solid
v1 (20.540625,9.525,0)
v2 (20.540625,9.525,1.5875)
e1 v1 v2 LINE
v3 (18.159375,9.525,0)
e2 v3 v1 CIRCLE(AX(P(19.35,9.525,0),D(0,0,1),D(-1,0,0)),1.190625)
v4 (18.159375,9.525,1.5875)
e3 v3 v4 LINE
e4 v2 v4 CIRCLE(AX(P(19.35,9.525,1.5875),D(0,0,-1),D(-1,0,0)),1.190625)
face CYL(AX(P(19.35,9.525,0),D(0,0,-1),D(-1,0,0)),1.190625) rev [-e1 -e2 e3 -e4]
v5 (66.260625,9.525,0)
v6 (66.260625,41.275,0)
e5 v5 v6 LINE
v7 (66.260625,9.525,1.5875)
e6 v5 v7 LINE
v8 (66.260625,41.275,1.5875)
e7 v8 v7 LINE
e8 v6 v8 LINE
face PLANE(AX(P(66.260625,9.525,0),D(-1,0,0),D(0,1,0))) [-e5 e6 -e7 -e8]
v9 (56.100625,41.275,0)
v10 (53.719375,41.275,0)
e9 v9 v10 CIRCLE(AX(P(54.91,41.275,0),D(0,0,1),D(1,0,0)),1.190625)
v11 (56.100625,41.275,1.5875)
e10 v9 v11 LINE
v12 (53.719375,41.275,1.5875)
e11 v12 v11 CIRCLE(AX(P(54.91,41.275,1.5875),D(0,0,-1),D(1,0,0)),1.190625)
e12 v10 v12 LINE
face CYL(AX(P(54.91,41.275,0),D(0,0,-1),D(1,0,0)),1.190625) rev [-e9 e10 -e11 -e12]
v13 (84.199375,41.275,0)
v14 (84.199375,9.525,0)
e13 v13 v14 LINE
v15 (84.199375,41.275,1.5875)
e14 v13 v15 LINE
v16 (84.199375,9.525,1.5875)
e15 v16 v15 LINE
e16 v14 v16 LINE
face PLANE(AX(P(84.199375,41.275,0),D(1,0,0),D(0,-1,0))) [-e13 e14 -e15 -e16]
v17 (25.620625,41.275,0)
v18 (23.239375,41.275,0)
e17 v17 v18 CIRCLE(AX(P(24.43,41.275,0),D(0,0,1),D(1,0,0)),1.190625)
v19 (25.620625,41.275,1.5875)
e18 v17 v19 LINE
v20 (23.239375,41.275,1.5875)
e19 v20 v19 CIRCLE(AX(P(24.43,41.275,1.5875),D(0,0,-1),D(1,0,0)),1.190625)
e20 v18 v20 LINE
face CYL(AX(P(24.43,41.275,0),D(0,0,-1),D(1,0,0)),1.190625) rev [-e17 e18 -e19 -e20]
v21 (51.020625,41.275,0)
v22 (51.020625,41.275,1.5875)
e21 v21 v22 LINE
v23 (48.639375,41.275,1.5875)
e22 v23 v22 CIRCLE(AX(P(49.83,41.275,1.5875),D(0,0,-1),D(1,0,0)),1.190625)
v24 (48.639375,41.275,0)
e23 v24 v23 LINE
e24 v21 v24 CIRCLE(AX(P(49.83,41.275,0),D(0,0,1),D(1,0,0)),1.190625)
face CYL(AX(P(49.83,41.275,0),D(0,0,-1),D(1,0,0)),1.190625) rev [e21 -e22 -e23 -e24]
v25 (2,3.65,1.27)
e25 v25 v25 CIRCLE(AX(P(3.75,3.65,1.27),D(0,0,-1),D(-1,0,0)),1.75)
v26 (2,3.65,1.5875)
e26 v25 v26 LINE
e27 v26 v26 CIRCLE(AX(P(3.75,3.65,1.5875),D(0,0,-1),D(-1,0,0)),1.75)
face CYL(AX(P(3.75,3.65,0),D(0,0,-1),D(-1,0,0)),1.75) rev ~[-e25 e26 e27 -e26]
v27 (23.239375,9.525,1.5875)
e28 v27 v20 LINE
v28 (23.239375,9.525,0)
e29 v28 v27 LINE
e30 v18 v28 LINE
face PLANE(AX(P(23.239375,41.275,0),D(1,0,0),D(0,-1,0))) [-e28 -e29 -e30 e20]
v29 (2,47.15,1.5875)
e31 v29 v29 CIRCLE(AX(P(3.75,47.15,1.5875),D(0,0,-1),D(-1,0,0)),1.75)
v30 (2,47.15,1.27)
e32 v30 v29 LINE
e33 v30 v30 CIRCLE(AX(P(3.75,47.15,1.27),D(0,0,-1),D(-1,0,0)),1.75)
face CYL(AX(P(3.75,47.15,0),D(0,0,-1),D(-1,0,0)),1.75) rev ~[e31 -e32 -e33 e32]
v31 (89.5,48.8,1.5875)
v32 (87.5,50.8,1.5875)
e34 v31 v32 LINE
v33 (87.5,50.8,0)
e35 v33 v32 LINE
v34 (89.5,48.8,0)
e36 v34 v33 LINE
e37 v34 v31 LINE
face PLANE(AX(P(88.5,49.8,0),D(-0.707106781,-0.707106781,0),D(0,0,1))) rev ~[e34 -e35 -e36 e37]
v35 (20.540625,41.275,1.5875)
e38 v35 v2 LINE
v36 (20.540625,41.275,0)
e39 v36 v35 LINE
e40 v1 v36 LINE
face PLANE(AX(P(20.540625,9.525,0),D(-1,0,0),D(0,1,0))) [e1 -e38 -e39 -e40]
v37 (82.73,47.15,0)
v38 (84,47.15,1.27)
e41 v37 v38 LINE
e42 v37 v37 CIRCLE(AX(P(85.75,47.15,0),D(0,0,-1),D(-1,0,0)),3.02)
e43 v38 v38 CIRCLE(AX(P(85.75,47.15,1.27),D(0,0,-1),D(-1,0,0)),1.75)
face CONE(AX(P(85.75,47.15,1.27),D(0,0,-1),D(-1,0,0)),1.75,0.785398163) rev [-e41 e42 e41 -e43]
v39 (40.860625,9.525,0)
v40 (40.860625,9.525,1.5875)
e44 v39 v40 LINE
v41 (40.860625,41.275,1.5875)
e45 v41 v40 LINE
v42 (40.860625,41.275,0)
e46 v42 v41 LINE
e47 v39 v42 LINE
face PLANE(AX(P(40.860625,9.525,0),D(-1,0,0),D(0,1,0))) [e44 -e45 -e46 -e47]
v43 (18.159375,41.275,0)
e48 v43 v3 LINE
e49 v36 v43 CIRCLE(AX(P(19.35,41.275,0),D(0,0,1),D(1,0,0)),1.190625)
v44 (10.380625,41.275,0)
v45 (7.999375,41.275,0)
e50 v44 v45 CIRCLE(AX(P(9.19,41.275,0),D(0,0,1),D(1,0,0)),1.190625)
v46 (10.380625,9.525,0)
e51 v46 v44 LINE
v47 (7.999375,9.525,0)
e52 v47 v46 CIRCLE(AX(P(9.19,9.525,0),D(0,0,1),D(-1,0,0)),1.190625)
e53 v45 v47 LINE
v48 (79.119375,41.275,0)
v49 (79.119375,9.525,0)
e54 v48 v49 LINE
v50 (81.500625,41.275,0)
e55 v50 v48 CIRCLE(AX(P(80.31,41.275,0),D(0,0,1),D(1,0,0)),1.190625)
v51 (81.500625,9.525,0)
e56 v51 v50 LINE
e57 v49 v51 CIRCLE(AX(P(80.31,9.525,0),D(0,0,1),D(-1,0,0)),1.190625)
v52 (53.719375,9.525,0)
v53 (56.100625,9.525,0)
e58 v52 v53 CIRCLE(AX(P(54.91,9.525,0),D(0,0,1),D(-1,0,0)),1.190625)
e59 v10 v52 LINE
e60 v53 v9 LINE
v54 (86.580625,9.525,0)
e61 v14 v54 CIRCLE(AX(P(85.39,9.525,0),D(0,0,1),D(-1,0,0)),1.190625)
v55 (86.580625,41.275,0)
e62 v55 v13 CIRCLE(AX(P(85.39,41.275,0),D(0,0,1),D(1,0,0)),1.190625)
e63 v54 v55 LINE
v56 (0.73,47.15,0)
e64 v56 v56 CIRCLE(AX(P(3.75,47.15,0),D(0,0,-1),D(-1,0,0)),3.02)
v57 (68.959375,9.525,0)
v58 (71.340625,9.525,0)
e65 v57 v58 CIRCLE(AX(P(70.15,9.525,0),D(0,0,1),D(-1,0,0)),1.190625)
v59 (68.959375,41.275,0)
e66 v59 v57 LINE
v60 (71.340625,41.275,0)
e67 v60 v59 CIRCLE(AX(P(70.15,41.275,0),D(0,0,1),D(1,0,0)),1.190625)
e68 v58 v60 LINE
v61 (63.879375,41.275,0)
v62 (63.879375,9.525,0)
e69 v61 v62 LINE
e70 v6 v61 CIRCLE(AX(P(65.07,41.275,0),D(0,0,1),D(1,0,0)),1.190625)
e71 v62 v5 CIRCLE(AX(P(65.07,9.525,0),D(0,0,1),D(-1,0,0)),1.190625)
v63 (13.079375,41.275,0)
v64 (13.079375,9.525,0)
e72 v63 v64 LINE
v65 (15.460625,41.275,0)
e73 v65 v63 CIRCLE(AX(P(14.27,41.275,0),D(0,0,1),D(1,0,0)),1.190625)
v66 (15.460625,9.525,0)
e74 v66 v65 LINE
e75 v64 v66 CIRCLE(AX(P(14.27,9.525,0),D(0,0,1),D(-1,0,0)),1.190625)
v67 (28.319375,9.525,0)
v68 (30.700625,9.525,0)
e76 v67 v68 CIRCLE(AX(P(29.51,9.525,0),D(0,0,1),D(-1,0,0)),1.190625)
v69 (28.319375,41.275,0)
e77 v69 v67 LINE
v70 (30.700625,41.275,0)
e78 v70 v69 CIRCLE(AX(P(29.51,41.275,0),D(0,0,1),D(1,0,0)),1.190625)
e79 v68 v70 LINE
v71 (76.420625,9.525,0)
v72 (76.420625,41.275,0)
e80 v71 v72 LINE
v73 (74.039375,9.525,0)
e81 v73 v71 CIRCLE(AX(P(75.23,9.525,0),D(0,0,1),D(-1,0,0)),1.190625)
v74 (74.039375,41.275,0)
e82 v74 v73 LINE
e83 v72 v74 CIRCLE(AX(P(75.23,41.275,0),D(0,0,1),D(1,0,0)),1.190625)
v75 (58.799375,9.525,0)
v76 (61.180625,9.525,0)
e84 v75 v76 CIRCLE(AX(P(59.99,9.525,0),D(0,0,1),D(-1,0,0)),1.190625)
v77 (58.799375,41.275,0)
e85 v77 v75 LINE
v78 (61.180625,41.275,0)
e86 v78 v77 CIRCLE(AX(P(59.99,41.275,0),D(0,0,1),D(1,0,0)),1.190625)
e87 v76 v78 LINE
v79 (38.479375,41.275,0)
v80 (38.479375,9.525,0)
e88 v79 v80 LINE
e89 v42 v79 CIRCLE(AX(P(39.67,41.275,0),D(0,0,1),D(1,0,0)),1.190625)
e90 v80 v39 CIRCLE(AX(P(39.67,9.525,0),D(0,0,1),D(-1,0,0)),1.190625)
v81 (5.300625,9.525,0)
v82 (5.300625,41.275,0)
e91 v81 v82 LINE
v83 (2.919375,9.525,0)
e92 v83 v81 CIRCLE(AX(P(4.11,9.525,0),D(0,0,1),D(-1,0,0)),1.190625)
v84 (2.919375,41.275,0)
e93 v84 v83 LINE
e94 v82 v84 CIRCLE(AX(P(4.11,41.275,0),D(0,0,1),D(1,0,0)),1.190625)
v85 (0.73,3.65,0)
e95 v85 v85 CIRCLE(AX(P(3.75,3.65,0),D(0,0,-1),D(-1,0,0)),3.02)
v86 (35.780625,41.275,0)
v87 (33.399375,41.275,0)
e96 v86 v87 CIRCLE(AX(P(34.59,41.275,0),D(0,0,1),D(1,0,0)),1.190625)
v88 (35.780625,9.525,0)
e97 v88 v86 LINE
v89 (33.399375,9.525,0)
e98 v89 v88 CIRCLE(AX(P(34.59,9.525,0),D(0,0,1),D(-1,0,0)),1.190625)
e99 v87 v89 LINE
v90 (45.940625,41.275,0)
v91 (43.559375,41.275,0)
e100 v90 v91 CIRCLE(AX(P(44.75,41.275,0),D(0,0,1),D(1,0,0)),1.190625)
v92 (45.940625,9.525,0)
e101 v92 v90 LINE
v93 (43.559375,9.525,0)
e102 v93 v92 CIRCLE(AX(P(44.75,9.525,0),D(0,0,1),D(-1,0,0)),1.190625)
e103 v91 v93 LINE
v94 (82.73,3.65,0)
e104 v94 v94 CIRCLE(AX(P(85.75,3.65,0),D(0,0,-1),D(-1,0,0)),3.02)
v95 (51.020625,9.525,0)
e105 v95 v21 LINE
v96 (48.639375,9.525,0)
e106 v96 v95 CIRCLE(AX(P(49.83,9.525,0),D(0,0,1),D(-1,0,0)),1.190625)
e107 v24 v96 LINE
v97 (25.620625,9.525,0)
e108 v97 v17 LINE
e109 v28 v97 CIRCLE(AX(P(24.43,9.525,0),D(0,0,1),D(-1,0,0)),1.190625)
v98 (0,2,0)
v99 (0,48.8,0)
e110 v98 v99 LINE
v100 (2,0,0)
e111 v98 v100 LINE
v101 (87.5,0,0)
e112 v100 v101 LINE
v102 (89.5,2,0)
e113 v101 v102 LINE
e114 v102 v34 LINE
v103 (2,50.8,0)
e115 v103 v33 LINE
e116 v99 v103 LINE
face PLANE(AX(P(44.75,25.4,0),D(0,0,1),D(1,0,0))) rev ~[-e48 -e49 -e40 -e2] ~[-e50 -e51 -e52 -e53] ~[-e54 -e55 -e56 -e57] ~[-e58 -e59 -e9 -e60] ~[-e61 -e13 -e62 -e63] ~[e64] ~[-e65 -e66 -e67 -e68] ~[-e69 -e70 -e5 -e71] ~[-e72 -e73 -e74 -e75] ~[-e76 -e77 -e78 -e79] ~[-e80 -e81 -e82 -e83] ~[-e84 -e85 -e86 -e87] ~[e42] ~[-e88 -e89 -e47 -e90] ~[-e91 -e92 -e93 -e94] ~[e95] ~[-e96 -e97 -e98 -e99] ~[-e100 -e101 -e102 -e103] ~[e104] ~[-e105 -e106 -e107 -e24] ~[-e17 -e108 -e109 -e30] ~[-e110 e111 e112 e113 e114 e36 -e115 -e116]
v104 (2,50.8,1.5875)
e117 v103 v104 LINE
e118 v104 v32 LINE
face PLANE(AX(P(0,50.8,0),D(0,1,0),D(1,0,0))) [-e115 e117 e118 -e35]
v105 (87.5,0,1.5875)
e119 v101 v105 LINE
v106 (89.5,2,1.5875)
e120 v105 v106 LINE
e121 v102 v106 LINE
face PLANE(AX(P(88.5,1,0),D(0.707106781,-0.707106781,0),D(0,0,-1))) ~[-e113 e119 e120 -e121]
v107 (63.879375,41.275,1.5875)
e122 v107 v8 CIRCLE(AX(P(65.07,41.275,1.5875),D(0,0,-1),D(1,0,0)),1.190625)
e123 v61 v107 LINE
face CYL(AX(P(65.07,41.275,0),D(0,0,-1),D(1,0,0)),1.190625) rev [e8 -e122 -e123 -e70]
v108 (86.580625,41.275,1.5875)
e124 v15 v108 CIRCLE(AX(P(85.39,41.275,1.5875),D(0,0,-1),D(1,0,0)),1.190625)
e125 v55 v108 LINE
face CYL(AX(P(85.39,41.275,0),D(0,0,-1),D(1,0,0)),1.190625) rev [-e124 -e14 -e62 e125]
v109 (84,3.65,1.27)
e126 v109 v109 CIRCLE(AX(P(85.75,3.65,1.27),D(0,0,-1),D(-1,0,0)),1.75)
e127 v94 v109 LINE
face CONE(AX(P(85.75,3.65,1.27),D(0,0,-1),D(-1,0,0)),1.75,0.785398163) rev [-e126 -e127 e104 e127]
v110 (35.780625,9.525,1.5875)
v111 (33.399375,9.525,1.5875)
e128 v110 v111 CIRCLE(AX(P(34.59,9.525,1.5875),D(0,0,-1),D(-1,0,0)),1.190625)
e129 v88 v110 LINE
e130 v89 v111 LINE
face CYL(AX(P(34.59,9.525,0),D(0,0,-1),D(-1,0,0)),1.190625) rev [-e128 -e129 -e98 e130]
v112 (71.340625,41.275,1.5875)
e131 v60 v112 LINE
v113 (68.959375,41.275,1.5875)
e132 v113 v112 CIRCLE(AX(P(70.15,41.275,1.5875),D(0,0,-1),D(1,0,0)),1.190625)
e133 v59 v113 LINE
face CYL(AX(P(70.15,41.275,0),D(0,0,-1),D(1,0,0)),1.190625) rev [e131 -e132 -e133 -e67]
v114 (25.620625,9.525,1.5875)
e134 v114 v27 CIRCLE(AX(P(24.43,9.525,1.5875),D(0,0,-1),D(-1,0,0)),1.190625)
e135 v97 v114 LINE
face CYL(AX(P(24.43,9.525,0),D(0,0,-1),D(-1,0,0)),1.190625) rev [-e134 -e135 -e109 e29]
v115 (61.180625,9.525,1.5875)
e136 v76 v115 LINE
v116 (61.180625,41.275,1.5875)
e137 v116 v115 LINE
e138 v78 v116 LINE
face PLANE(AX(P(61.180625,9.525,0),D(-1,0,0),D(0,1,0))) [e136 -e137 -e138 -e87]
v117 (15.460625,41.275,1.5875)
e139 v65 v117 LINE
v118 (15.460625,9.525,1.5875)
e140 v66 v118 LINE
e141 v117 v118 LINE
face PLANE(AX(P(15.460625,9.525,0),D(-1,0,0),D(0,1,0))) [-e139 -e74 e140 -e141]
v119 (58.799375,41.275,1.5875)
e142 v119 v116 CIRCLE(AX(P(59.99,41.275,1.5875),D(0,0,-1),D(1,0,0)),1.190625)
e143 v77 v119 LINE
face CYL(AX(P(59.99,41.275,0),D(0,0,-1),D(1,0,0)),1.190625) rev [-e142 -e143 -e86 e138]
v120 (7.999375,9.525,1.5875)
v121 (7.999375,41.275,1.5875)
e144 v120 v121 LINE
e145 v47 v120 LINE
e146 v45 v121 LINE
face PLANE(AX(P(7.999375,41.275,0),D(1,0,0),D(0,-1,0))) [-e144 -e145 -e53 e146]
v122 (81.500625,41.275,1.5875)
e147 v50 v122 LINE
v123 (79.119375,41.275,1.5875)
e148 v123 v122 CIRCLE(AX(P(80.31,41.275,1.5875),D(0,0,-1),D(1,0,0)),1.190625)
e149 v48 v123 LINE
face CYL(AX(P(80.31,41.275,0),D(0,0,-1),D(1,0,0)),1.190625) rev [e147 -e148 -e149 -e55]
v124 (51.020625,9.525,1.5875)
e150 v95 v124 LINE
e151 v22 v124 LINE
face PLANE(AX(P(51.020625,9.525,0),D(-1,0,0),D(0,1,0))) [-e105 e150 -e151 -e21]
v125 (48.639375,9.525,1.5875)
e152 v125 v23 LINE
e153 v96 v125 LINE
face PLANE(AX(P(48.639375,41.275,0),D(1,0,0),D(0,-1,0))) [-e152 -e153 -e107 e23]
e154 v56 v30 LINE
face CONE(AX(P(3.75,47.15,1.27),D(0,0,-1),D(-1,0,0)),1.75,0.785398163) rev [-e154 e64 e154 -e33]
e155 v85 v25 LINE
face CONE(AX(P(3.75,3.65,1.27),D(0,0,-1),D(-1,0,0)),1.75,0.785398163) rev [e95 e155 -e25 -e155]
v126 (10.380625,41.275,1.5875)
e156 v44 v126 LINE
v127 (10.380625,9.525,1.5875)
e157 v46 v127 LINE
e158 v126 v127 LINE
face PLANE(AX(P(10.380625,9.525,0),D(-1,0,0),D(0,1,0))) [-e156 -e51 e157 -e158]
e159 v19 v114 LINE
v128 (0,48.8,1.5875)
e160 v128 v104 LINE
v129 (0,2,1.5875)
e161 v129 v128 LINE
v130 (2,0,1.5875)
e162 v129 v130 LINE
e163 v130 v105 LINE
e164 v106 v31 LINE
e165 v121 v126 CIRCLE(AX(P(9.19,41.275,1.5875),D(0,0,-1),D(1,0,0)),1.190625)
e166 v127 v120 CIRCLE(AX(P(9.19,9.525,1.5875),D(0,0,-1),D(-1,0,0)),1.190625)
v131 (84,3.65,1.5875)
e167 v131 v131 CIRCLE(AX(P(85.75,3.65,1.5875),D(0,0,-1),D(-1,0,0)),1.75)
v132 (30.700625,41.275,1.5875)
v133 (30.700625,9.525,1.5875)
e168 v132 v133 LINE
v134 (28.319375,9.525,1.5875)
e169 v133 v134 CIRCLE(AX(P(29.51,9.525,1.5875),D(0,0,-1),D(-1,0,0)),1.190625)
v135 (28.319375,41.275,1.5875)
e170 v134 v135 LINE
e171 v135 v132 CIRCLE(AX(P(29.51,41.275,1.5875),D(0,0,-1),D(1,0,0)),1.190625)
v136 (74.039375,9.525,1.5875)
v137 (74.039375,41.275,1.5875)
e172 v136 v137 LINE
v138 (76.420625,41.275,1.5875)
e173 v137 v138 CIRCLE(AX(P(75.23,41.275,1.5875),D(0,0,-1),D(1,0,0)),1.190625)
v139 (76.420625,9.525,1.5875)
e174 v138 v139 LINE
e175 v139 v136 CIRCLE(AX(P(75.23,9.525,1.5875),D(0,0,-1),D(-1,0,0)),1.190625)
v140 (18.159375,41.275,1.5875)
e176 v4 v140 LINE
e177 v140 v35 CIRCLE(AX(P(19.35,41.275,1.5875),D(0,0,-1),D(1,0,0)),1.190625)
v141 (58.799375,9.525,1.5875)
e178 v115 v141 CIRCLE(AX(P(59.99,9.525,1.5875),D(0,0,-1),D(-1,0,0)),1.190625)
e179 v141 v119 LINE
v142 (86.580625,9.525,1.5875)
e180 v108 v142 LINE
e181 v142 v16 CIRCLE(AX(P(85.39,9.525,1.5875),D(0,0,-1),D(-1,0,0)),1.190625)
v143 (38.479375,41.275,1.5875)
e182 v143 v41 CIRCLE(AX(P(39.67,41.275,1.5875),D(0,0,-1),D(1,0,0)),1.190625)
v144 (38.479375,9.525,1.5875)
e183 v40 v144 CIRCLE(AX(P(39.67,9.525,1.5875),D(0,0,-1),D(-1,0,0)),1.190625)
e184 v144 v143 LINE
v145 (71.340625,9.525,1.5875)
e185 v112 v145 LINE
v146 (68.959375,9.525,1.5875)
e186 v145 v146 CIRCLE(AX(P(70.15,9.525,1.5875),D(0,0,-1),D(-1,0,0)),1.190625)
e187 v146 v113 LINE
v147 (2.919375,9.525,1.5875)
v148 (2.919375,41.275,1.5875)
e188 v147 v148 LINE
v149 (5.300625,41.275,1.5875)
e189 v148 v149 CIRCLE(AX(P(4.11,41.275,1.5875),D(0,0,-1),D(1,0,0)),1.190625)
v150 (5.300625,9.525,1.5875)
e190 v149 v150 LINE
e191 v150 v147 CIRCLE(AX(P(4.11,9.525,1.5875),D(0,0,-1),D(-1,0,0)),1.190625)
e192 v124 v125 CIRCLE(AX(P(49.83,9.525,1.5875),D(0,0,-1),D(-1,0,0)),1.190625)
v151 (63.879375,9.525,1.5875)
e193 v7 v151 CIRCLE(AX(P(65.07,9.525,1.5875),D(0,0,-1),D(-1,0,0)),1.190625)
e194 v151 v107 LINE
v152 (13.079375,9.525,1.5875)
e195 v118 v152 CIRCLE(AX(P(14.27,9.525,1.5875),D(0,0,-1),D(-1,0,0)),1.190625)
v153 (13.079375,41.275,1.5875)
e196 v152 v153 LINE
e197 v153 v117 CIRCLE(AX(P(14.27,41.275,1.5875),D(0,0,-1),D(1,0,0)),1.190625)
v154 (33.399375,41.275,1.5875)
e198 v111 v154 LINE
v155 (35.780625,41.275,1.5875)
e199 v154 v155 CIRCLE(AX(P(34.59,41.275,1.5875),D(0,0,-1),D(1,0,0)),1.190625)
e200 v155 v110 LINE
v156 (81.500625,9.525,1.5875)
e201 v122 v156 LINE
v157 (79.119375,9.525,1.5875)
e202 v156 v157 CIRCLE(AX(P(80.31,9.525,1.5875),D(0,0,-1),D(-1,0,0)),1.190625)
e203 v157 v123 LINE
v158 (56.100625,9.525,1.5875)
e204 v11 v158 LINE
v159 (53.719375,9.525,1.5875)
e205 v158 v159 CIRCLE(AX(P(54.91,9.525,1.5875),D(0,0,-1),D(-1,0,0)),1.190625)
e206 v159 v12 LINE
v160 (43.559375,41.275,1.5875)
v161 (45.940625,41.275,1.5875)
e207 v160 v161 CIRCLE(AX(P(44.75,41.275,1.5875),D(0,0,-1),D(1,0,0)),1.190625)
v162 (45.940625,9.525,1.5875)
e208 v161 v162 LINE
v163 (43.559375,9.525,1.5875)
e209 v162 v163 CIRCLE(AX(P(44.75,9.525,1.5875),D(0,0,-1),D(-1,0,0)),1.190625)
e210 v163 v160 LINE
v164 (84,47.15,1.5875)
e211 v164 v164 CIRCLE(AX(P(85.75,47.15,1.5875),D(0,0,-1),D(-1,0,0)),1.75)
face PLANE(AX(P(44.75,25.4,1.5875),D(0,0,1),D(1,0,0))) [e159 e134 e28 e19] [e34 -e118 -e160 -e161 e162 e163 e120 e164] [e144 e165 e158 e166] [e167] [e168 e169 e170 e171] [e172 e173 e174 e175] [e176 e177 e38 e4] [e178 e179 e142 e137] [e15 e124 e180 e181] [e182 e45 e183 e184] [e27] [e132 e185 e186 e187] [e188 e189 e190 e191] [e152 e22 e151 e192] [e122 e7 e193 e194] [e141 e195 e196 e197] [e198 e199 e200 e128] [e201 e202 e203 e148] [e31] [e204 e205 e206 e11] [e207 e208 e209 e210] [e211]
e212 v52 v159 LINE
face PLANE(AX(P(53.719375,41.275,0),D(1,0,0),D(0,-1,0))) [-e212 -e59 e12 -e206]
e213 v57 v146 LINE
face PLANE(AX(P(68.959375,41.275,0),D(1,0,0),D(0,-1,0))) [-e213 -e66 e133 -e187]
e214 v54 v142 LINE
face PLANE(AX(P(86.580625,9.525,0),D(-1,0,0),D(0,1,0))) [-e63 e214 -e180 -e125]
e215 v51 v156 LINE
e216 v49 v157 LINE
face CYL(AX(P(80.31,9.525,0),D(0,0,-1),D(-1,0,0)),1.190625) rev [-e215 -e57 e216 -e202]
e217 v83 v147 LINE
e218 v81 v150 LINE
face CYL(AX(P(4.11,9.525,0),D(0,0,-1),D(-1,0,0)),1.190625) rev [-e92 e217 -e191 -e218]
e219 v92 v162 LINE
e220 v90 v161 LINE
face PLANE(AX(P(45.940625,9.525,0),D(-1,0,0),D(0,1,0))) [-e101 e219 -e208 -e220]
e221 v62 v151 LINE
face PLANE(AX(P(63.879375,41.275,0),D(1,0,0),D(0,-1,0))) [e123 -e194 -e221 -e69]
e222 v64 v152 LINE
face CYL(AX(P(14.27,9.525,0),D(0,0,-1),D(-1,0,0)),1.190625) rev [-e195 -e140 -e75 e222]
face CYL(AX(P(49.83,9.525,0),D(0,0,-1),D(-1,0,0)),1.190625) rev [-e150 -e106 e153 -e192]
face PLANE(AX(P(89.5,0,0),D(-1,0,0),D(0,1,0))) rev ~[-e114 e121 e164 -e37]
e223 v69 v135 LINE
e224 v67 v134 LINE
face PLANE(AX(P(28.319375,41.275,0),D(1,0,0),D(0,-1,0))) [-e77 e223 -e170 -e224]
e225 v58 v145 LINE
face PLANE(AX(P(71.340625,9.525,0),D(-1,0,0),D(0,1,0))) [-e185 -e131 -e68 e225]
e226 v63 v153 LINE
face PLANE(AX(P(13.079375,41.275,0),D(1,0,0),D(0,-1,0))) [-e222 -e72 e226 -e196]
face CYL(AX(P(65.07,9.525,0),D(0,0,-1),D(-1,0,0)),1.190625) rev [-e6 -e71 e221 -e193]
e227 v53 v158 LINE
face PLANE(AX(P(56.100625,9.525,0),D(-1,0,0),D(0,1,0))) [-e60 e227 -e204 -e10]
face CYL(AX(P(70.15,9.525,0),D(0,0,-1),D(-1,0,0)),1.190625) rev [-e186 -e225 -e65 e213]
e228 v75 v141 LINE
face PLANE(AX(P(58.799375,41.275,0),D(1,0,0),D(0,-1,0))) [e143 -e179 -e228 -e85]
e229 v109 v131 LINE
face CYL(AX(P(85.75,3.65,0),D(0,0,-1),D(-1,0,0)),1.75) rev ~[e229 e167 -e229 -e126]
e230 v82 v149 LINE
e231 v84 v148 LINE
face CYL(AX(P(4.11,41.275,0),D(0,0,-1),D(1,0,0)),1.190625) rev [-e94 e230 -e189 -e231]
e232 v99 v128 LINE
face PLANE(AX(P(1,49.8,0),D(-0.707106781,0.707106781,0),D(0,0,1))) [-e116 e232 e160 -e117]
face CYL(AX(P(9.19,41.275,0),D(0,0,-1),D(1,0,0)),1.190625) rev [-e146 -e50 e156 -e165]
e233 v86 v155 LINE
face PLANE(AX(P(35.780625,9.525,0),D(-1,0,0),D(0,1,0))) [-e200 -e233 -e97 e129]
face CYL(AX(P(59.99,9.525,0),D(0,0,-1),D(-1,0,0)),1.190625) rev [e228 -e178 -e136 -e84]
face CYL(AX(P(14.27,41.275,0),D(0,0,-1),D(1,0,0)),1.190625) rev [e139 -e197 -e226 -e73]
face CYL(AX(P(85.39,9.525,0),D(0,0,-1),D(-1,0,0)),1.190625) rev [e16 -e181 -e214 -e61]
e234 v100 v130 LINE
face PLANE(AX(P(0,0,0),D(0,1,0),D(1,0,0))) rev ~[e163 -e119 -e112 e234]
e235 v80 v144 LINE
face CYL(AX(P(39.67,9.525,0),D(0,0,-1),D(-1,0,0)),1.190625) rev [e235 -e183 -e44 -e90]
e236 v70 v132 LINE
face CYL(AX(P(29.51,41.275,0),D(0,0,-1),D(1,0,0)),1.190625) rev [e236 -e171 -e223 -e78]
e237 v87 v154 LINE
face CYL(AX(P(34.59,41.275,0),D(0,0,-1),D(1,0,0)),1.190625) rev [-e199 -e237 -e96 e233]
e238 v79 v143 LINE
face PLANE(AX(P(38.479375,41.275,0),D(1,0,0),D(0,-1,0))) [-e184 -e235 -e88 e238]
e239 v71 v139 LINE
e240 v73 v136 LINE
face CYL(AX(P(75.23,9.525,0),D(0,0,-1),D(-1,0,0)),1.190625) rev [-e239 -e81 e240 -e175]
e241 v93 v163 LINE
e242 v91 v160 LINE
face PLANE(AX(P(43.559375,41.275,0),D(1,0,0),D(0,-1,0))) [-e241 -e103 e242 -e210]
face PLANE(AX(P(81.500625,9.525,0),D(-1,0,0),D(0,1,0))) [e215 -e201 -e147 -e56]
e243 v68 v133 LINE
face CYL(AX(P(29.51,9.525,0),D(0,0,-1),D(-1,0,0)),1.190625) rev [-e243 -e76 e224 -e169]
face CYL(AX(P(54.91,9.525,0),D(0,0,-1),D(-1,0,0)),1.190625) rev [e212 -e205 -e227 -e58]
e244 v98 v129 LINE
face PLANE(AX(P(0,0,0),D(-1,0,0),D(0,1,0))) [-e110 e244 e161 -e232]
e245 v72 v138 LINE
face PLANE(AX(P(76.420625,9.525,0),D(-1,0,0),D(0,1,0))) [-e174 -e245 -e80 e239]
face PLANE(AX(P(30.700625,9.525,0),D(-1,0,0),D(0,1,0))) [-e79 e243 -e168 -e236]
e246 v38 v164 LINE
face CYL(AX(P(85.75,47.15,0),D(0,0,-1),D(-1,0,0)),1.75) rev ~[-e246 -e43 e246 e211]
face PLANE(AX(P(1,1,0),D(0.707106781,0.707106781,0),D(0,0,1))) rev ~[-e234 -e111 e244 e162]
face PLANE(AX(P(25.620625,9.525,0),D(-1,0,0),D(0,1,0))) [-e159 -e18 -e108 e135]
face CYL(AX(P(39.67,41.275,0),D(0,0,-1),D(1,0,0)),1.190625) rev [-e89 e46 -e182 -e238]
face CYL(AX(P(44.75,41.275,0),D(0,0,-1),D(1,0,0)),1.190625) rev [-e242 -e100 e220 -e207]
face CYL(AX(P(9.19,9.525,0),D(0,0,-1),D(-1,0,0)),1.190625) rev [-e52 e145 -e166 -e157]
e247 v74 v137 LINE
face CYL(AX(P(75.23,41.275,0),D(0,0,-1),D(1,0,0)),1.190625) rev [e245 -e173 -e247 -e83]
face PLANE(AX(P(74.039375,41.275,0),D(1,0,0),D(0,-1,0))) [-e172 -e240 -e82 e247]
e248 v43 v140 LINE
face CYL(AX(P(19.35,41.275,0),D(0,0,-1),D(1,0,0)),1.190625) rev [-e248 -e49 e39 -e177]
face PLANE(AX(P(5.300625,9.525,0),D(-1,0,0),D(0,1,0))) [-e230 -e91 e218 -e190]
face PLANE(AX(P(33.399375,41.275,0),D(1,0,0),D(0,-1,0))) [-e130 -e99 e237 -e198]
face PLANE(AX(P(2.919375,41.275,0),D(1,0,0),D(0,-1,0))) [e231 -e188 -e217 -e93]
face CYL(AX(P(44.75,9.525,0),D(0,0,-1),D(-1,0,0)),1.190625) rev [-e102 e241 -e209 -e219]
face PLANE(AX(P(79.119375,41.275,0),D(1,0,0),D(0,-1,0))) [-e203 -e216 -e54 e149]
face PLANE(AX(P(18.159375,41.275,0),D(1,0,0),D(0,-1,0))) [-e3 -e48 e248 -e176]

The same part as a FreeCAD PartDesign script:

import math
import FreeCAD as App
import Part
import Sketcher
Q = App.Units.Quantity


def edges_at(feature, points):
    """Names of the edges that pass closest to the given points."""
    edges = feature.Shape.Edges
    near = lambda p: min(range(len(edges)), key=lambda i: edges[i].distToShape(Part.Vertex(*p))[0])
    return sorted({f"Edge{near(p) + 1}" for p in points})

doc = App.newDocument("Part")
params = doc.addObject("Spreadsheet::Sheet", "Params")
for row, (alias, value) in enumerate([
    ("sketch1_height", "2 in"),
    ("pad1_length", "0.0625 in"),
    ("chamfer_size", "2 mm"),
    ("sketch2_radius", "0.046875 in"),
    ("sketch2_height", "1.25 in"),
    ("chamfer2_size", "0.05 in"),
], start=1):
    params.set(f"A{row}", alias)
    params.set(f"B{row}", "=" + value)
    params.setAlias(f"B{row}", alias)

body = doc.addObject("PartDesign::Body", "Body")

# Sketch on XY plane
sketch1 = body.newObject("Sketcher::SketchObject", "Sketch")
sketch1.AttachmentSupport = (doc.getObject("XY_Plane"), [""])
sketch1.MapMode = "FlatFace"
sketch1.addGeometry([
    Part.LineSegment(App.Vector(0, 51, 0), App.Vector(0, 0, 0)),
    Part.LineSegment(App.Vector(0, 0, 0), App.Vector(90, 0, 0)),
    Part.LineSegment(App.Vector(90, 0, 0), App.Vector(90, 51, 0)),
    Part.LineSegment(App.Vector(90, 51, 0), App.Vector(0, 51, 0)),
], False)
sketch1.addConstraint([
    Sketcher.Constraint("Coincident", 0, 2, 1, 1),
    Sketcher.Constraint("Coincident", 1, 2, 2, 1),
    Sketcher.Constraint("Coincident", 2, 2, 3, 1),
    Sketcher.Constraint("Coincident", 3, 2, 0, 1),
    Sketcher.Constraint("Vertical", 0),
    Sketcher.Constraint("Horizontal", 1),
    Sketcher.Constraint("Vertical", 2),
    Sketcher.Constraint("Horizontal", 3),
    Sketcher.Constraint("Coincident", 0, 2, -1, 1),
    Sketcher.Constraint("DistanceY", 0, 2, 0, 1, Q("2 in")),
    Sketcher.Constraint("DistanceX", 1, 1, 1, 2, Q("89.5 mm")),
])
sketch1.setExpression("Constraints[9]", "Params.sketch1_height")
pad1 = body.newObject("PartDesign::Pad", "Pad")
pad1.Profile = sketch1
pad1.setExpression("Length", "Params.pad1_length")
doc.recompute()

chamfer = body.newObject("PartDesign::Chamfer", "Chamfer")
chamfer.Base = (pad1, edges_at(pad1, [
    (0, 50.8, 0.794),
    (89.5, 50.8, 0.794),
    (89.5, 0, 0.794),
    (0, 0, 0.794),
]))
chamfer.setExpression("Size", "Params.chamfer_size")

# Sketch on XY plane
sketch2 = body.newObject("Sketcher::SketchObject", "Sketch001")
sketch2.AttachmentSupport = (doc.getObject("XY_Plane"), [""])
sketch2.MapMode = "FlatFace"
sketch2.addGeometry([
    Part.LineSegment(App.Vector(43.6, 9.5, 0), App.Vector(43.6, 41.3, 0)),  # 0
    Part.ArcOfCircle(Part.Circle(App.Vector(44.8, 41.3, 0), App.Vector(0, 0, 1), 1.2), math.radians(0), math.radians(180)),  # 1
    Part.LineSegment(App.Vector(45.9, 41.3, 0), App.Vector(45.9, 9.5, 0)),  # 2
    Part.ArcOfCircle(Part.Circle(App.Vector(44.8, 9.5, 0), App.Vector(0, 0, 1), 1.2), math.radians(180), math.radians(360)),  # 3
    Part.LineSegment(App.Vector(38.5, 9.5, 0), App.Vector(38.5, 41.3, 0)),  # 4
    Part.ArcOfCircle(Part.Circle(App.Vector(39.7, 41.3, 0), App.Vector(0, 0, 1), 1.2), math.radians(0), math.radians(180)),  # 5
    Part.LineSegment(App.Vector(40.9, 41.3, 0), App.Vector(40.9, 9.5, 0)),  # 6
    Part.ArcOfCircle(Part.Circle(App.Vector(39.7, 9.5, 0), App.Vector(0, 0, 1), 1.2), math.radians(180), math.radians(360)),  # 7
    Part.LineSegment(App.Vector(33.4, 9.5, 0), App.Vector(33.4, 41.3, 0)),  # 8
    Part.ArcOfCircle(Part.Circle(App.Vector(34.6, 41.3, 0), App.Vector(0, 0, 1), 1.2), math.radians(0), math.radians(180)),  # 9
    Part.LineSegment(App.Vector(35.8, 41.3, 0), App.Vector(35.8, 9.5, 0)),  # 10
    Part.ArcOfCircle(Part.Circle(App.Vector(34.6, 9.5, 0), App.Vector(0, 0, 1), 1.2), math.radians(180), math.radians(360)),  # 11
    Part.LineSegment(App.Vector(28.3, 9.5, 0), App.Vector(28.3, 41.3, 0)),  # 12
    Part.ArcOfCircle(Part.Circle(App.Vector(29.5, 41.3, 0), App.Vector(0, 0, 1), 1.2), math.radians(0), math.radians(180)),  # 13
    Part.LineSegment(App.Vector(30.7, 41.3, 0), App.Vector(30.7, 9.5, 0)),  # 14
    Part.ArcOfCircle(Part.Circle(App.Vector(29.5, 9.5, 0), App.Vector(0, 0, 1), 1.2), math.radians(180), math.radians(360)),  # 15
    Part.LineSegment(App.Vector(23.2, 9.5, 0), App.Vector(23.2, 41.3, 0)),  # 16
    Part.ArcOfCircle(Part.Circle(App.Vector(24.4, 41.3, 0), App.Vector(0, 0, 1), 1.2), math.radians(0), math.radians(180)),  # 17
    Part.LineSegment(App.Vector(25.6, 41.3, 0), App.Vector(25.6, 9.5, 0)),  # 18
    Part.ArcOfCircle(Part.Circle(App.Vector(24.4, 9.5, 0), App.Vector(0, 0, 1), 1.2), math.radians(180), math.radians(360)),  # 19
    Part.LineSegment(App.Vector(18.2, 9.5, 0), App.Vector(18.2, 41.3, 0)),  # 20
    Part.ArcOfCircle(Part.Circle(App.Vector(19.4, 41.3, 0), App.Vector(0, 0, 1), 1.2), math.radians(0), math.radians(180)),  # 21
    Part.LineSegment(App.Vector(20.5, 41.3, 0), App.Vector(20.5, 9.5, 0)),  # 22
    Part.ArcOfCircle(Part.Circle(App.Vector(19.4, 9.5, 0), App.Vector(0, 0, 1), 1.2), math.radians(180), math.radians(360)),  # 23
    Part.LineSegment(App.Vector(13.1, 9.5, 0), App.Vector(13.1, 41.3, 0)),  # 24
    Part.ArcOfCircle(Part.Circle(App.Vector(14.3, 41.3, 0), App.Vector(0, 0, 1), 1.2), math.radians(0), math.radians(180)),  # 25
    Part.LineSegment(App.Vector(15.5, 41.3, 0), App.Vector(15.5, 9.5, 0)),  # 26
    Part.ArcOfCircle(Part.Circle(App.Vector(14.3, 9.5, 0), App.Vector(0, 0, 1), 1.2), math.radians(180), math.radians(360)),  # 27
    Part.LineSegment(App.Vector(8, 9.5, 0), App.Vector(8, 41.3, 0)),  # 28
    Part.ArcOfCircle(Part.Circle(App.Vector(9.2, 41.3, 0), App.Vector(0, 0, 1), 1.2), math.radians(0), math.radians(180)),  # 29
    Part.LineSegment(App.Vector(10.4, 41.3, 0), App.Vector(10.4, 9.5, 0)),  # 30
    Part.ArcOfCircle(Part.Circle(App.Vector(9.2, 9.5, 0), App.Vector(0, 0, 1), 1.2), math.radians(180), math.radians(360)),  # 31
    Part.LineSegment(App.Vector(2.9, 9.5, 0), App.Vector(2.9, 41.3, 0)),  # 32
    Part.ArcOfCircle(Part.Circle(App.Vector(4.1, 41.3, 0), App.Vector(0, 0, 1), 1.2), math.radians(0), math.radians(180)),  # 33
    Part.LineSegment(App.Vector(5.3, 41.3, 0), App.Vector(5.3, 9.5, 0)),  # 34
    Part.ArcOfCircle(Part.Circle(App.Vector(4.1, 9.5, 0), App.Vector(0, 0, 1), 1.2), math.radians(180), math.radians(360)),  # 35
    Part.LineSegment(App.Vector(48.6, 9.5, 0), App.Vector(48.6, 41.3, 0)),  # 36
    Part.ArcOfCircle(Part.Circle(App.Vector(49.8, 41.3, 0), App.Vector(0, 0, 1), 1.2), math.radians(0), math.radians(180)),  # 37
    Part.LineSegment(App.Vector(51, 41.3, 0), App.Vector(51, 9.5, 0)),  # 38
    Part.ArcOfCircle(Part.Circle(App.Vector(49.8, 9.5, 0), App.Vector(0, 0, 1), 1.2), math.radians(180), math.radians(360)),  # 39
    Part.LineSegment(App.Vector(53.7, 9.5, 0), App.Vector(53.7, 41.3, 0)),  # 40
    Part.ArcOfCircle(Part.Circle(App.Vector(54.9, 41.3, 0), App.Vector(0, 0, 1), 1.2), math.radians(0), math.radians(180)),  # 41
    Part.LineSegment(App.Vector(56.1, 41.3, 0), App.Vector(56.1, 9.5, 0)),  # 42
    Part.ArcOfCircle(Part.Circle(App.Vector(54.9, 9.5, 0), App.Vector(0, 0, 1), 1.2), math.radians(180), math.radians(360)),  # 43
    Part.LineSegment(App.Vector(58.8, 9.5, 0), App.Vector(58.8, 41.3, 0)),  # 44
    Part.ArcOfCircle(Part.Circle(App.Vector(60, 41.3, 0), App.Vector(0, 0, 1), 1.2), math.radians(0), math.radians(180)),  # 45
    Part.LineSegment(App.Vector(61.2, 41.3, 0), App.Vector(61.2, 9.5, 0)),  # 46
    Part.ArcOfCircle(Part.Circle(App.Vector(60, 9.5, 0), App.Vector(0, 0, 1), 1.2), math.radians(180), math.radians(360)),  # 47
    Part.LineSegment(App.Vector(63.9, 9.5, 0), App.Vector(63.9, 41.3, 0)),  # 48
    Part.ArcOfCircle(Part.Circle(App.Vector(65.1, 41.3, 0), App.Vector(0, 0, 1), 1.2), math.radians(0), math.radians(180)),  # 49
    Part.LineSegment(App.Vector(66.3, 41.3, 0), App.Vector(66.3, 9.5, 0)),  # 50
    Part.ArcOfCircle(Part.Circle(App.Vector(65.1, 9.5, 0), App.Vector(0, 0, 1), 1.2), math.radians(180), math.radians(360)),  # 51
    Part.LineSegment(App.Vector(69, 9.5, 0), App.Vector(69, 41.3, 0)),  # 52
    Part.ArcOfCircle(Part.Circle(App.Vector(70.2, 41.3, 0), App.Vector(0, 0, 1), 1.2), math.radians(0), math.radians(180)),  # 53
    Part.LineSegment(App.Vector(71.3, 41.3, 0), App.Vector(71.3, 9.5, 0)),  # 54
    Part.ArcOfCircle(Part.Circle(App.Vector(70.2, 9.5, 0), App.Vector(0, 0, 1), 1.2), math.radians(180), math.radians(360)),  # 55
    Part.LineSegment(App.Vector(74, 9.5, 0), App.Vector(74, 41.3, 0)),  # 56
    Part.ArcOfCircle(Part.Circle(App.Vector(75.2, 41.3, 0), App.Vector(0, 0, 1), 1.2), math.radians(0), math.radians(180)),  # 57
    Part.LineSegment(App.Vector(76.4, 41.3, 0), App.Vector(76.4, 9.5, 0)),  # 58
    Part.ArcOfCircle(Part.Circle(App.Vector(75.2, 9.5, 0), App.Vector(0, 0, 1), 1.2), math.radians(180), math.radians(360)),  # 59
    Part.LineSegment(App.Vector(79.1, 9.5, 0), App.Vector(79.1, 41.3, 0)),  # 60
    Part.ArcOfCircle(Part.Circle(App.Vector(80.3, 41.3, 0), App.Vector(0, 0, 1), 1.2), math.radians(0), math.radians(180)),  # 61
    Part.LineSegment(App.Vector(81.5, 41.3, 0), App.Vector(81.5, 9.5, 0)),  # 62
    Part.ArcOfCircle(Part.Circle(App.Vector(80.3, 9.5, 0), App.Vector(0, 0, 1), 1.2), math.radians(180), math.radians(360)),  # 63
    Part.LineSegment(App.Vector(84.2, 9.5, 0), App.Vector(84.2, 41.3, 0)),  # 64
    Part.ArcOfCircle(Part.Circle(App.Vector(85.4, 41.3, 0), App.Vector(0, 0, 1), 1.2), math.radians(0), math.radians(180)),  # 65
    Part.LineSegment(App.Vector(86.6, 41.3, 0), App.Vector(86.6, 9.5, 0)),  # 66
    Part.ArcOfCircle(Part.Circle(App.Vector(85.4, 9.5, 0), App.Vector(0, 0, 1), 1.2), math.radians(180), math.radians(360)),  # 67
], False)
sketch2.addConstraint([
    Sketcher.Constraint("Tangent", 0, 2, 1, 2),
    Sketcher.Constraint("Tangent", 1, 1, 2, 1),
    Sketcher.Constraint("Tangent", 2, 2, 3, 2),
    Sketcher.Constraint("Tangent", 3, 1, 0, 1),
    Sketcher.Constraint("Tangent", 4, 2, 5, 2),
    Sketcher.Constraint("Tangent", 5, 1, 6, 1),
    Sketcher.Constraint("Tangent", 6, 2, 7, 2),
    Sketcher.Constraint("Tangent", 7, 1, 4, 1),
    Sketcher.Constraint("Tangent", 8, 2, 9, 2),
    Sketcher.Constraint("Tangent", 9, 1, 10, 1),
    Sketcher.Constraint("Tangent", 10, 2, 11, 2),
    Sketcher.Constraint("Tangent", 11, 1, 8, 1),
    Sketcher.Constraint("Tangent", 12, 2, 13, 2),
    Sketcher.Constraint("Tangent", 13, 1, 14, 1),
    Sketcher.Constraint("Tangent", 14, 2, 15, 2),
    Sketcher.Constraint("Tangent", 15, 1, 12, 1),
    Sketcher.Constraint("Tangent", 16, 2, 17, 2),
    Sketcher.Constraint("Tangent", 17, 1, 18, 1),
    Sketcher.Constraint("Tangent", 18, 2, 19, 2),
    Sketcher.Constraint("Tangent", 19, 1, 16, 1),
    Sketcher.Constraint("Tangent", 20, 2, 21, 2),
    Sketcher.Constraint("Tangent", 21, 1, 22, 1),
    Sketcher.Constraint("Tangent", 22, 2, 23, 2),
    Sketcher.Constraint("Tangent", 23, 1, 20, 1),
    Sketcher.Constraint("Tangent", 24, 2, 25, 2),
    Sketcher.Constraint("Tangent", 25, 1, 26, 1),
    Sketcher.Constraint("Tangent", 26, 2, 27, 2),
    Sketcher.Constraint("Tangent", 27, 1, 24, 1),
    Sketcher.Constraint("Tangent", 28, 2, 29, 2),
    Sketcher.Constraint("Tangent", 29, 1, 30, 1),
    Sketcher.Constraint("Tangent", 30, 2, 31, 2),
    Sketcher.Constraint("Tangent", 31, 1, 28, 1),
    Sketcher.Constraint("Tangent", 32, 2, 33, 2),
    Sketcher.Constraint("Tangent", 33, 1, 34, 1),
    Sketcher.Constraint("Tangent", 34, 2, 35, 2),
    Sketcher.Constraint("Tangent", 35, 1, 32, 1),
    Sketcher.Constraint("Tangent", 36, 2, 37, 2),
    Sketcher.Constraint("Tangent", 37, 1, 38, 1),
    Sketcher.Constraint("Tangent", 38, 2, 39, 2),
    Sketcher.Constraint("Tangent", 39, 1, 36, 1),
    Sketcher.Constraint("Tangent", 40, 2, 41, 2),
    Sketcher.Constraint("Tangent", 41, 1, 42, 1),
    Sketcher.Constraint("Tangent", 42, 2, 43, 2),
    Sketcher.Constraint("Tangent", 43, 1, 40, 1),
    Sketcher.Constraint("Tangent", 44, 2, 45, 2),
    Sketcher.Constraint("Tangent", 45, 1, 46, 1),
    Sketcher.Constraint("Tangent", 46, 2, 47, 2),
    Sketcher.Constraint("Tangent", 47, 1, 44, 1),
    Sketcher.Constraint("Tangent", 48, 2, 49, 2),
    Sketcher.Constraint("Tangent", 49, 1, 50, 1),
    Sketcher.Constraint("Tangent", 50, 2, 51, 2),
    Sketcher.Constraint("Tangent", 51, 1, 48, 1),
    Sketcher.Constraint("Tangent", 52, 2, 53, 2),
    Sketcher.Constraint("Tangent", 53, 1, 54, 1),
    Sketcher.Constraint("Tangent", 54, 2, 55, 2),
    Sketcher.Constraint("Tangent", 55, 1, 52, 1),
    Sketcher.Constraint("Tangent", 56, 2, 57, 2),
    Sketcher.Constraint("Tangent", 57, 1, 58, 1),
    Sketcher.Constraint("Tangent", 58, 2, 59, 2),
    Sketcher.Constraint("Tangent", 59, 1, 56, 1),
    Sketcher.Constraint("Tangent", 60, 2, 61, 2),
    Sketcher.Constraint("Tangent", 61, 1, 62, 1),
    Sketcher.Constraint("Tangent", 62, 2, 63, 2),
    Sketcher.Constraint("Tangent", 63, 1, 60, 1),
    Sketcher.Constraint("Tangent", 64, 2, 65, 2),
    Sketcher.Constraint("Tangent", 65, 1, 66, 1),
    Sketcher.Constraint("Tangent", 66, 2, 67, 2),
    Sketcher.Constraint("Tangent", 67, 1, 64, 1),
    Sketcher.Constraint("Vertical", 0),
    Sketcher.Constraint("Vertical", 2),
    Sketcher.Constraint("Vertical", 4),
    Sketcher.Constraint("Vertical", 6),
    Sketcher.Constraint("Vertical", 8),
    Sketcher.Constraint("Vertical", 10),
    Sketcher.Constraint("Vertical", 12),
    Sketcher.Constraint("Vertical", 14),
    Sketcher.Constraint("Vertical", 16),
    Sketcher.Constraint("Vertical", 18),
    Sketcher.Constraint("Vertical", 20),
    Sketcher.Constraint("Vertical", 22),
    Sketcher.Constraint("Vertical", 24),
    Sketcher.Constraint("Vertical", 26),
    Sketcher.Constraint("Vertical", 28),
    Sketcher.Constraint("Vertical", 30),
    Sketcher.Constraint("Vertical", 32),
    Sketcher.Constraint("Vertical", 34),
    Sketcher.Constraint("Vertical", 36),
    Sketcher.Constraint("Vertical", 38),
    Sketcher.Constraint("Vertical", 40),
    Sketcher.Constraint("Vertical", 42),
    Sketcher.Constraint("Vertical", 44),
    Sketcher.Constraint("Vertical", 46),
    Sketcher.Constraint("Vertical", 48),
    Sketcher.Constraint("Vertical", 50),
    Sketcher.Constraint("Vertical", 52),
    Sketcher.Constraint("Vertical", 54),
    Sketcher.Constraint("Vertical", 56),
    Sketcher.Constraint("Vertical", 58),
    Sketcher.Constraint("Vertical", 60),
    Sketcher.Constraint("Vertical", 62),
    Sketcher.Constraint("Vertical", 64),
    Sketcher.Constraint("Vertical", 66),
    Sketcher.Constraint("Equal", 3, 5),
    Sketcher.Constraint("Equal", 7, 9),
    Sketcher.Constraint("Equal", 11, 13),
    Sketcher.Constraint("Equal", 15, 17),
    Sketcher.Constraint("Equal", 19, 21),
    Sketcher.Constraint("Equal", 23, 25),
    Sketcher.Constraint("Equal", 27, 29),
    Sketcher.Constraint("Equal", 31, 33),
    Sketcher.Constraint("Equal", 35, 37),
    Sketcher.Constraint("Equal", 39, 41),
    Sketcher.Constraint("Equal", 43, 45),
    Sketcher.Constraint("Equal", 47, 49),
    Sketcher.Constraint("Equal", 51, 53),
    Sketcher.Constraint("Equal", 55, 57),
    Sketcher.Constraint("Equal", 59, 61),
    Sketcher.Constraint("Equal", 63, 65),
    Sketcher.Constraint("Horizontal", 1, 3, 5, 3),
    Sketcher.Constraint("Horizontal", 3, 3, 7, 3),
    Sketcher.Constraint("Horizontal", 5, 3, 9, 3),
    Sketcher.Constraint("Horizontal", 7, 3, 11, 3),
    Sketcher.Constraint("Horizontal", 9, 3, 13, 3),
    Sketcher.Constraint("Horizontal", 11, 3, 15, 3),
    Sketcher.Constraint("Horizontal", 13, 3, 17, 3),
    Sketcher.Constraint("Horizontal", 15, 3, 19, 3),
    Sketcher.Constraint("Horizontal", 17, 3, 21, 3),
    Sketcher.Constraint("Horizontal", 19, 3, 23, 3),
    Sketcher.Constraint("Horizontal", 21, 3, 25, 3),
    Sketcher.Constraint("Horizontal", 23, 3, 27, 3),
    Sketcher.Constraint("Horizontal", 25, 3, 29, 3),
    Sketcher.Constraint("Horizontal", 27, 3, 31, 3),
    Sketcher.Constraint("Horizontal", 29, 3, 33, 3),
    Sketcher.Constraint("Horizontal", 31, 3, 35, 3),
    Sketcher.Constraint("Horizontal", 33, 3, 37, 3),
    Sketcher.Constraint("Horizontal", 35, 3, 39, 3),
    Sketcher.Constraint("Horizontal", 37, 3, 41, 3),
    Sketcher.Constraint("Horizontal", 39, 3, 43, 3),
    Sketcher.Constraint("Horizontal", 41, 3, 45, 3),
    Sketcher.Constraint("Horizontal", 43, 3, 47, 3),
    Sketcher.Constraint("Horizontal", 45, 3, 49, 3),
    Sketcher.Constraint("Horizontal", 47, 3, 51, 3),
    Sketcher.Constraint("Horizontal", 49, 3, 53, 3),
    Sketcher.Constraint("Horizontal", 51, 3, 55, 3),
    Sketcher.Constraint("Horizontal", 53, 3, 57, 3),
    Sketcher.Constraint("Horizontal", 55, 3, 59, 3),
    Sketcher.Constraint("Horizontal", 57, 3, 61, 3),
    Sketcher.Constraint("Horizontal", 59, 3, 63, 3),
    Sketcher.Constraint("Horizontal", 61, 3, 65, 3),
    Sketcher.Constraint("Horizontal", 63, 3, 67, 3),
    Sketcher.Constraint("Radius", 1, Q("0.046875 in")),
    Sketcher.Constraint("DistanceY", 0, 1, 0, 2, Q("1.25 in")),
    Sketcher.Constraint("DistanceY", -1, 1, 1, 3, Q("1.625 in")),
    Sketcher.Constraint("DistanceX", -1, 1, 1, 3, Q("44.75 mm")),
    Sketcher.Constraint("DistanceX", -1, 1, 5, 3, Q("39.67 mm")),
    Sketcher.Constraint("DistanceX", -1, 1, 9, 3, Q("34.59 mm")),
    Sketcher.Constraint("DistanceX", -1, 1, 13, 3, Q("29.51 mm")),
    Sketcher.Constraint("DistanceX", -1, 1, 17, 3, Q("24.43 mm")),
    Sketcher.Constraint("DistanceX", -1, 1, 21, 3, Q("19.35 mm")),
    Sketcher.Constraint("DistanceX", -1, 1, 25, 3, Q("14.27 mm")),
    Sketcher.Constraint("DistanceX", -1, 1, 29, 3, Q("9.19 mm")),
    Sketcher.Constraint("DistanceX", -1, 1, 33, 3, Q("4.11 mm")),
    Sketcher.Constraint("DistanceX", -1, 1, 37, 3, Q("49.83 mm")),
    Sketcher.Constraint("DistanceX", -1, 1, 41, 3, Q("54.91 mm")),
    Sketcher.Constraint("DistanceX", -1, 1, 45, 3, Q("59.99 mm")),
    Sketcher.Constraint("DistanceX", -1, 1, 49, 3, Q("65.07 mm")),
    Sketcher.Constraint("DistanceX", -1, 1, 53, 3, Q("70.15 mm")),
    Sketcher.Constraint("DistanceX", -1, 1, 57, 3, Q("75.23 mm")),
    Sketcher.Constraint("DistanceX", -1, 1, 61, 3, Q("80.31 mm")),
    Sketcher.Constraint("DistanceX", -1, 1, 65, 3, Q("85.39 mm")),
])
sketch2.setExpression("Constraints[150]", "Params.sketch2_radius")
sketch2.setExpression("Constraints[151]", "Params.sketch2_height")
pocket1 = body.newObject("PartDesign::Pocket", "Pocket")
pocket1.Profile = sketch2
pocket1.Type = "ThroughAll"
pocket1.Reversed = True

# Sketch on XY plane
sketch3 = body.newObject("Sketcher::SketchObject", "Sketch002")
sketch3.AttachmentSupport = (doc.getObject("XY_Plane"), [""])
sketch3.MapMode = "FlatFace"
sketch3.addGeometry([
    Part.Circle(App.Vector(85.8, 47.1, 0), App.Vector(0, 0, 1), 1.8),
    Part.Circle(App.Vector(3.8, 47.1, 0), App.Vector(0, 0, 1), 1.8),
    Part.Circle(App.Vector(3.8, 3.6, 0), App.Vector(0, 0, 1), 1.8),
    Part.Circle(App.Vector(85.8, 3.6, 0), App.Vector(0, 0, 1), 1.8),
], False)
sketch3.addConstraint([
    Sketcher.Constraint("Equal", 0, 1),
    Sketcher.Constraint("Equal", 1, 2),
    Sketcher.Constraint("Equal", 2, 3),
    Sketcher.Constraint("Horizontal", 0, 3, 1, 3),
    Sketcher.Constraint("Horizontal", 2, 3, 3, 3),
    Sketcher.Constraint("Vertical", 1, 3, 2, 3),
    Sketcher.Constraint("Vertical", 0, 3, 3, 3),
    Sketcher.Constraint("Diameter", 0, Q("3.5 mm")),
    Sketcher.Constraint("DistanceX", -1, 1, 0, 3, Q("85.75 mm")),
    Sketcher.Constraint("DistanceY", -1, 1, 0, 3, Q("47.15 mm")),
    Sketcher.Constraint("DistanceX", -1, 1, 1, 3, Q("3.75 mm")),
    Sketcher.Constraint("DistanceY", -1, 1, 2, 3, Q("3.65 mm")),
])
pocket2 = body.newObject("PartDesign::Pocket", "Pocket001")
pocket2.Profile = sketch3
pocket2.Type = "ThroughAll"
pocket2.Reversed = True
doc.recompute()

chamfer2 = body.newObject("PartDesign::Chamfer", "Chamfer001")
chamfer2.Base = (pocket2, edges_at(pocket2, [
    (87.5, 47.15, 0),
    (5.5, 47.15, 0),
    (5.5, 3.65, 0),
    (87.5, 3.65, 0),
]))
chamfer2.setExpression("Size", "Params.chamfer2_size")

doc.recompute()
